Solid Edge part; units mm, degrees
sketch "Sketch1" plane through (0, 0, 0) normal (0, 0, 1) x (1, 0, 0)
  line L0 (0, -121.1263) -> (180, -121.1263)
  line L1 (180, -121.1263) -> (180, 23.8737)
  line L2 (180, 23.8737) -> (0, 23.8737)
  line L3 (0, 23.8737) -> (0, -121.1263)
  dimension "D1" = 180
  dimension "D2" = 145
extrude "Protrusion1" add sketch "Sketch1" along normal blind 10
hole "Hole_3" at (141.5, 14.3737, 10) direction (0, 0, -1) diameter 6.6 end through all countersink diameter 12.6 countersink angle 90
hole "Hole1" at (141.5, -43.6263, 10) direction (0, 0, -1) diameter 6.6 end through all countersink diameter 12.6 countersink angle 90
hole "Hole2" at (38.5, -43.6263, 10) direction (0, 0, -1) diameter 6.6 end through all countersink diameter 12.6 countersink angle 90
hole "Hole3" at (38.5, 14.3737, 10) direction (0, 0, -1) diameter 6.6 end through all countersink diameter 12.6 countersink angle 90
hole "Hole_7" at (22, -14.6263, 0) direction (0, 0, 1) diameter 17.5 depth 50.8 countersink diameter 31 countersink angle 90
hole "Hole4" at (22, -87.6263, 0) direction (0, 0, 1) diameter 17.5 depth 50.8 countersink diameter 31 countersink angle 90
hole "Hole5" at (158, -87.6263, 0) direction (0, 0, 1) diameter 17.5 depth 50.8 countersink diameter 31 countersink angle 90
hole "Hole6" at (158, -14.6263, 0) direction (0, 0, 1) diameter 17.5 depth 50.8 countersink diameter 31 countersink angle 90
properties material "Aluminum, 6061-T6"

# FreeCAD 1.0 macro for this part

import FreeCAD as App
import Part
import Sketcher
from FreeCAD import Vector
Q = App.Units.Quantity


def add_polygon(sketch, points):
    """Adds a closed chain of lines whose ends are joined by coincident constraints."""
    first, n = sketch.GeometryCount, len(points)
    for a, b in zip(points, points[1:] + points[:1]):
        sketch.addGeometry(Part.LineSegment(App.Vector(*a, 0), App.Vector(*b, 0)), False)
    for i in range(n):
        sketch.addConstraint(Sketcher.Constraint("Coincident", first + i, 2, first + (i + 1) % n, 1))

doc = App.newDocument("Part")
params = doc.addObject("Spreadsheet::Sheet", "Params")
for row, (alias, value) in enumerate([
    ("sketch1_width", "180 mm"),
    ("sketch1_height", "145 mm"),
    ("pad1_length", "10 mm"),
    ("sketch2_diameter", "6.6 mm"),
    ("hole_diameter", "6.6 mm"),
    ("hole_csink_diameter", "12.6 mm"),
    ("sketch3_diameter", "6.6 mm"),
    ("hole2_diameter", "6.6 mm"),
    ("hole2_csink_diameter", "12.6 mm"),
    ("sketch4_diameter", "6.6 mm"),
    ("hole3_diameter", "6.6 mm"),
    ("hole3_csink_diameter", "12.6 mm"),
    ("sketch5_diameter", "6.6 mm"),
    ("hole4_diameter", "6.6 mm"),
    ("hole4_csink_diameter", "12.6 mm"),
    ("sketch6_diameter", "17.5 mm"),
    ("hole5_diameter", "17.5 mm"),
    ("hole5_depth", "50.8 mm"),
    ("hole5_csink_diameter", "31 mm"),
    ("sketch7_diameter", "17.5 mm"),
    ("hole6_diameter", "17.5 mm"),
    ("hole6_depth", "50.8 mm"),
    ("hole6_csink_diameter", "31 mm"),
    ("sketch8_diameter", "17.5 mm"),
    ("hole7_diameter", "17.5 mm"),
    ("hole7_depth", "50.8 mm"),
    ("hole7_csink_diameter", "31 mm"),
    ("sketch9_diameter", "17.5 mm"),
    ("hole8_diameter", "17.5 mm"),
    ("hole8_depth", "50.8 mm"),
    ("hole8_csink_diameter", "31 mm"),
], start=1):
    params.set(f"A{row}", alias)
    params.set(f"B{row}", "=" + value)
    params.setAlias(f"B{row}", alias)

body = doc.addObject("PartDesign::Body", "Body")

# Sketch on XY plane
sketch1 = body.newObject("Sketcher::SketchObject", "Sketch")
sketch1.AttachmentSupport = (doc.getObject("XY_Plane"), [""])
sketch1.MapMode = "FlatFace"
add_polygon(sketch1, [(0, 24), (0, -121), (180, -121), (180, 24)])  # lines 0-3
sketch1.addConstraint(Sketcher.Constraint("Vertical", 0))
sketch1.addConstraint(Sketcher.Constraint("Horizontal", 1))
sketch1.addConstraint(Sketcher.Constraint("Vertical", 2))
sketch1.addConstraint(Sketcher.Constraint("Horizontal", 3))
sketch1.addConstraint(Sketcher.Constraint("PointOnObject", 0, 2, -2))
sketch1.addConstraint(Sketcher.Constraint("DistanceX", 1, 1, 1, 2, Q("180 mm")))
sketch1.addConstraint(Sketcher.Constraint("DistanceY", 0, 2, 0, 1, Q("145 mm")))
sketch1.addConstraint(Sketcher.Constraint("DistanceY", 0, 2, -1, 1, Q("121.1263 mm")))
sketch1.setExpression("Constraints[9]", "Params.sketch1_width")
sketch1.setExpression("Constraints[10]", "Params.sketch1_height")
pad1 = body.newObject("PartDesign::Pad", "Pad")
pad1.Profile = sketch1
pad1.setExpression("Length", "Params.pad1_length")

# Sketch on XY plane
sketch2 = body.newObject("Sketcher::SketchObject", "Sketch001")
sketch2.AttachmentSupport = (doc.getObject("XY_Plane"), [""])
sketch2.MapMode = "FlatFace"
sketch2.AttachmentOffset = App.Placement(Vector(0, 0, 10), App.Rotation())
sketch2.addGeometry(Part.Circle(Vector(141.5, 14.4, 0), Vector(0, 0, 1), 3.3), False)
sketch2.addConstraint(Sketcher.Constraint("Diameter", 0, Q("6.6 mm")))
sketch2.addConstraint(Sketcher.Constraint("DistanceX", -1, 1, 0, 3, Q("141.5 mm")))
sketch2.addConstraint(Sketcher.Constraint("DistanceY", -1, 1, 0, 3, Q("14.3737 mm")))
sketch2.setExpression("Constraints[0]", "Params.sketch2_diameter")
doc.recompute()
hole = body.newObject("PartDesign::Hole", "Hole")
hole.Profile = sketch2
hole.ThreadType = "None"
hole.setExpression("Diameter", "Params.hole_diameter")
hole.DepthType = "ThroughAll"
hole.HoleCutType = "Countersink"
hole.setExpression("HoleCutDiameter", "Params.hole_csink_diameter")
hole.HoleCutCountersinkAngle = 90

# Sketch on XY plane
sketch3 = body.newObject("Sketcher::SketchObject", "Sketch002")
sketch3.AttachmentSupport = (doc.getObject("XY_Plane"), [""])
sketch3.MapMode = "FlatFace"
sketch3.AttachmentOffset = App.Placement(Vector(0, 0, 10), App.Rotation())
sketch3.addGeometry(Part.Circle(Vector(141.5, -43.6, 0), Vector(0, 0, 1), 3.3), False)
sketch3.addConstraint(Sketcher.Constraint("Diameter", 0, Q("6.6 mm")))
sketch3.addConstraint(Sketcher.Constraint("DistanceX", -1, 1, 0, 3, Q("141.5 mm")))
sketch3.addConstraint(Sketcher.Constraint("DistanceY", 0, 3, -1, 1, Q("43.6263 mm")))
sketch3.setExpression("Constraints[0]", "Params.sketch3_diameter")
doc.recompute()
hole2 = body.newObject("PartDesign::Hole", "Hole001")
hole2.Profile = sketch3
hole2.ThreadType = "None"
hole2.setExpression("Diameter", "Params.hole2_diameter")
hole2.DepthType = "ThroughAll"
hole2.HoleCutType = "Countersink"
hole2.setExpression("HoleCutDiameter", "Params.hole2_csink_diameter")
hole2.HoleCutCountersinkAngle = 90

# Sketch on XY plane
sketch4 = body.newObject("Sketcher::SketchObject", "Sketch003")
sketch4.AttachmentSupport = (doc.getObject("XY_Plane"), [""])
sketch4.MapMode = "FlatFace"
sketch4.AttachmentOffset = App.Placement(Vector(0, 0, 10), App.Rotation())
sketch4.addGeometry(Part.Circle(Vector(38.5, -43.6, 0), Vector(0, 0, 1), 3.3), False)
sketch4.addConstraint(Sketcher.Constraint("Diameter", 0, Q("6.6 mm")))
sketch4.addConstraint(Sketcher.Constraint("DistanceX", -1, 1, 0, 3, Q("38.5 mm")))
sketch4.addConstraint(Sketcher.Constraint("DistanceY", 0, 3, -1, 1, Q("43.6263 mm")))
sketch4.setExpression("Constraints[0]", "Params.sketch4_diameter")
doc.recompute()
hole3 = body.newObject("PartDesign::Hole", "Hole002")
hole3.Profile = sketch4
hole3.ThreadType = "None"
hole3.setExpression("Diameter", "Params.hole3_diameter")
hole3.DepthType = "ThroughAll"
hole3.HoleCutType = "Countersink"
hole3.setExpression("HoleCutDiameter", "Params.hole3_csink_diameter")
hole3.HoleCutCountersinkAngle = 90

# Sketch on XY plane
sketch5 = body.newObject("Sketcher::SketchObject", "Sketch004")
sketch5.AttachmentSupport = (doc.getObject("XY_Plane"), [""])
sketch5.MapMode = "FlatFace"
sketch5.AttachmentOffset = App.Placement(Vector(0, 0, 10), App.Rotation())
sketch5.addGeometry(Part.Circle(Vector(38.5, 14.4, 0), Vector(0, 0, 1), 3.3), False)
sketch5.addConstraint(Sketcher.Constraint("Diameter", 0, Q("6.6 mm")))
sketch5.addConstraint(Sketcher.Constraint("DistanceX", -1, 1, 0, 3, Q("38.5 mm")))
sketch5.addConstraint(Sketcher.Constraint("DistanceY", -1, 1, 0, 3, Q("14.3737 mm")))
sketch5.setExpression("Constraints[0]", "Params.sketch5_diameter")
doc.recompute()
hole4 = body.newObject("PartDesign::Hole", "Hole003")
hole4.Profile = sketch5
hole4.ThreadType = "None"
hole4.setExpression("Diameter", "Params.hole4_diameter")
hole4.DepthType = "ThroughAll"
hole4.HoleCutType = "Countersink"
hole4.setExpression("HoleCutDiameter", "Params.hole4_csink_diameter")
hole4.HoleCutCountersinkAngle = 90

# Sketch on XY plane
sketch6 = body.newObject("Sketcher::SketchObject", "Sketch005")
sketch6.AttachmentSupport = (doc.getObject("XY_Plane"), [""])
sketch6.MapMode = "FlatFace"
sketch6.addGeometry(Part.Circle(Vector(22, -15, 0), Vector(0, 0, 1), 9), False)
sketch6.addConstraint(Sketcher.Constraint("Diameter", 0, Q("17.5 mm")))
sketch6.addConstraint(Sketcher.Constraint("DistanceX", -1, 1, 0, 3, Q("22 mm")))
sketch6.addConstraint(Sketcher.Constraint("DistanceY", 0, 3, -1, 1, Q("14.6263 mm")))
sketch6.setExpression("Constraints[0]", "Params.sketch6_diameter")
doc.recompute()
hole5 = body.newObject("PartDesign::Hole", "Hole004")
hole5.Profile = sketch6
hole5.ThreadType = "None"
hole5.setExpression("Diameter", "Params.hole5_diameter")
hole5.DepthType = "Dimension"
hole5.setExpression("Depth", "Params.hole5_depth")
hole5.DrillPoint = "Flat"
hole5.HoleCutType = "Countersink"
hole5.setExpression("HoleCutDiameter", "Params.hole5_csink_diameter")
hole5.HoleCutCountersinkAngle = 90
hole5.Reversed = True

# Sketch on XY plane
sketch7 = body.newObject("Sketcher::SketchObject", "Sketch006")
sketch7.AttachmentSupport = (doc.getObject("XY_Plane"), [""])
sketch7.MapMode = "FlatFace"
sketch7.addGeometry(Part.Circle(Vector(22, -88, 0), Vector(0, 0, 1), 9), False)
sketch7.addConstraint(Sketcher.Constraint("Diameter", 0, Q("17.5 mm")))
sketch7.addConstraint(Sketcher.Constraint("DistanceX", -1, 1, 0, 3, Q("22 mm")))
sketch7.addConstraint(Sketcher.Constraint("DistanceY", 0, 3, -1, 1, Q("87.6263 mm")))
sketch7.setExpression("Constraints[0]", "Params.sketch7_diameter")
doc.recompute()
hole6 = body.newObject("PartDesign::Hole", "Hole005")
hole6.Profile = sketch7
hole6.ThreadType = "None"
hole6.setExpression("Diameter", "Params.hole6_diameter")
hole6.DepthType = "Dimension"
hole6.setExpression("Depth", "Params.hole6_depth")
hole6.DrillPoint = "Flat"
hole6.HoleCutType = "Countersink"
hole6.setExpression("HoleCutDiameter", "Params.hole6_csink_diameter")
hole6.HoleCutCountersinkAngle = 90
hole6.Reversed = True

# Sketch on XY plane
sketch8 = body.newObject("Sketcher::SketchObject", "Sketch007")
sketch8.AttachmentSupport = (doc.getObject("XY_Plane"), [""])
sketch8.MapMode = "FlatFace"
sketch8.addGeometry(Part.Circle(Vector(158, -88, 0), Vector(0, 0, 1), 9), False)
sketch8.addConstraint(Sketcher.Constraint("Diameter", 0, Q("17.5 mm")))
sketch8.addConstraint(Sketcher.Constraint("DistanceX", -1, 1, 0, 3, Q("158 mm")))
sketch8.addConstraint(Sketcher.Constraint("DistanceY", 0, 3, -1, 1, Q("87.6263 mm")))
sketch8.setExpression("Constraints[0]", "Params.sketch8_diameter")
doc.recompute()
hole7 = body.newObject("PartDesign::Hole", "Hole006")
hole7.Profile = sketch8
hole7.ThreadType = "None"
hole7.setExpression("Diameter", "Params.hole7_diameter")
hole7.DepthType = "Dimension"
hole7.setExpression("Depth", "Params.hole7_depth")
hole7.DrillPoint = "Flat"
hole7.HoleCutType = "Countersink"
hole7.setExpression("HoleCutDiameter", "Params.hole7_csink_diameter")
hole7.HoleCutCountersinkAngle = 90
hole7.Reversed = True

# Sketch on XY plane
sketch9 = body.newObject("Sketcher::SketchObject", "Sketch008")
sketch9.AttachmentSupport = (doc.getObject("XY_Plane"), [""])
sketch9.MapMode = "FlatFace"
sketch9.addGeometry(Part.Circle(Vector(158, -15, 0), Vector(0, 0, 1), 9), False)
sketch9.addConstraint(Sketcher.Constraint("Diameter", 0, Q("17.5 mm")))
sketch9.addConstraint(Sketcher.Constraint("DistanceX", -1, 1, 0, 3, Q("158 mm")))
sketch9.addConstraint(Sketcher.Constraint("DistanceY", 0, 3, -1, 1, Q("14.6263 mm")))
sketch9.setExpression("Constraints[0]", "Params.sketch9_diameter")
doc.recompute()
hole8 = body.newObject("PartDesign::Hole", "Hole007")
hole8.Profile = sketch9
hole8.ThreadType = "None"
hole8.setExpression("Diameter", "Params.hole8_diameter")
hole8.DepthType = "Dimension"
hole8.setExpression("Depth", "Params.hole8_depth")
hole8.DrillPoint = "Flat"
hole8.HoleCutType = "Countersink"
hole8.setExpression("HoleCutDiameter", "Params.hole8_csink_diameter")
hole8.HoleCutCountersinkAngle = 90
hole8.Reversed = True

doc.recompute()
